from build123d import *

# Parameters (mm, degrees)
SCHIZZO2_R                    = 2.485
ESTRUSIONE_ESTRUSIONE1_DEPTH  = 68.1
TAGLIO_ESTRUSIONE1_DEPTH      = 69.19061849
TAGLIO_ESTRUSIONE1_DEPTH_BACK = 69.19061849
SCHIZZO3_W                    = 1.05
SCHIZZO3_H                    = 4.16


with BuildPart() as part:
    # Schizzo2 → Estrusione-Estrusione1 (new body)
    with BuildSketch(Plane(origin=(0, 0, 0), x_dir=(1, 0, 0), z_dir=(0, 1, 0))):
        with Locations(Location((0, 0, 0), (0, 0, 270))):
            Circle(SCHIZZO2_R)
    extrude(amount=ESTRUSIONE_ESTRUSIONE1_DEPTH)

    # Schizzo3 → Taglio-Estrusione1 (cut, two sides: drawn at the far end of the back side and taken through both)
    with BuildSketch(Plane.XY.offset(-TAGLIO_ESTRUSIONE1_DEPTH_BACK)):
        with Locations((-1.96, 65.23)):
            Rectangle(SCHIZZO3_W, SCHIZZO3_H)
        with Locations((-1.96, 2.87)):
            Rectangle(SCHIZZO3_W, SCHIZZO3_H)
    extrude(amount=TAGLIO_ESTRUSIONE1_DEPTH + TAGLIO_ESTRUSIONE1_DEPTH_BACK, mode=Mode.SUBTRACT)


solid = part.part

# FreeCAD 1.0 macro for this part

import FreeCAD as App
import Part
import Sketcher

V = App.Vector
Q = App.Units.Quantity


def add_polygon(sketch, points):
    """Adds a closed chain of lines whose ends are joined by coincident constraints."""
    first, n = sketch.GeometryCount, len(points)
    for a, b in zip(points, points[1:] + points[:1]):
        sketch.addGeometry(Part.LineSegment(App.Vector(*a, 0), App.Vector(*b, 0)), False)
    for i in range(n):
        sketch.addConstraint(Sketcher.Constraint("Coincident", first + i, 2, first + (i + 1) % n, 1))

doc = App.newDocument("Part")
body = doc.addObject("PartDesign::Body", "Body")

# Sketch on XZ plane
sketch1 = body.newObject("Sketcher::SketchObject", "Sketch")
sketch1.AttachmentSupport = (doc.getObject("XZ_Plane"), [""])
sketch1.MapMode = "FlatFace"
sketch1.addGeometry(Part.Circle(V(0, 0, 0), V(0, 0, 1), 2.5), False)
sketch1.addConstraint([
    Sketcher.Constraint("Coincident", 0, 3, -1, 1),
    Sketcher.Constraint("Diameter", 0, Q("4.97 mm")),
])
pad1 = body.newObject("PartDesign::Pad", "Pad")
pad1.Profile = sketch1
pad1.Length = 68.1
pad1.Reversed = True

# Sketch on XY plane
sketch2 = body.newObject("Sketcher::SketchObject", "Sketch001")
sketch2.AttachmentSupport = (doc.getObject("XY_Plane"), [""])
sketch2.MapMode = "FlatFace"
add_polygon(sketch2, [(-2.5, 67.3), (-2.5, 63.1), (-1.4, 63.1), (-1.4, 67.3)])  # lines 0-3
add_polygon(sketch2, [(-2.5, 5), (-2.5, 0.8), (-1.4, 0.8), (-1.4, 5)])  # lines 4-7
sketch2.addConstraint([
    Sketcher.Constraint("Vertical", 0),
    Sketcher.Constraint("Horizontal", 1),
    Sketcher.Constraint("Vertical", 2),
    Sketcher.Constraint("Horizontal", 3),
    Sketcher.Constraint("Vertical", 4),
    Sketcher.Constraint("Horizontal", 5),
    Sketcher.Constraint("Vertical", 6),
    Sketcher.Constraint("Horizontal", 7),
    Sketcher.Constraint("Vertical", 3, 2, 4, 2),
    Sketcher.Constraint("Vertical", 2, 2, 5, 2),
    Sketcher.Constraint("Equal", 2, 4),
    Sketcher.Constraint("DistanceX", 1, 1, 1, 2, Q("1.05 mm")),
    Sketcher.Constraint("DistanceY", 0, 2, 0, 1, Q("4.16 mm")),
    Sketcher.Constraint("DistanceY", 6, 2, 1, 2, Q("58.2 mm")),
    Sketcher.Constraint("DistanceY", -1, 1, 0, 2, Q("63.15 mm")),
    Sketcher.Constraint("DistanceX", 0, 2, -1, 1, Q("2.485 mm")),
])
pocket1 = body.newObject("PartDesign::Pocket", "Pocket")
pocket1.Profile = sketch2
pocket1.Type = "ThroughAll"
pocket1.Midplane = True

doc.recompute()
